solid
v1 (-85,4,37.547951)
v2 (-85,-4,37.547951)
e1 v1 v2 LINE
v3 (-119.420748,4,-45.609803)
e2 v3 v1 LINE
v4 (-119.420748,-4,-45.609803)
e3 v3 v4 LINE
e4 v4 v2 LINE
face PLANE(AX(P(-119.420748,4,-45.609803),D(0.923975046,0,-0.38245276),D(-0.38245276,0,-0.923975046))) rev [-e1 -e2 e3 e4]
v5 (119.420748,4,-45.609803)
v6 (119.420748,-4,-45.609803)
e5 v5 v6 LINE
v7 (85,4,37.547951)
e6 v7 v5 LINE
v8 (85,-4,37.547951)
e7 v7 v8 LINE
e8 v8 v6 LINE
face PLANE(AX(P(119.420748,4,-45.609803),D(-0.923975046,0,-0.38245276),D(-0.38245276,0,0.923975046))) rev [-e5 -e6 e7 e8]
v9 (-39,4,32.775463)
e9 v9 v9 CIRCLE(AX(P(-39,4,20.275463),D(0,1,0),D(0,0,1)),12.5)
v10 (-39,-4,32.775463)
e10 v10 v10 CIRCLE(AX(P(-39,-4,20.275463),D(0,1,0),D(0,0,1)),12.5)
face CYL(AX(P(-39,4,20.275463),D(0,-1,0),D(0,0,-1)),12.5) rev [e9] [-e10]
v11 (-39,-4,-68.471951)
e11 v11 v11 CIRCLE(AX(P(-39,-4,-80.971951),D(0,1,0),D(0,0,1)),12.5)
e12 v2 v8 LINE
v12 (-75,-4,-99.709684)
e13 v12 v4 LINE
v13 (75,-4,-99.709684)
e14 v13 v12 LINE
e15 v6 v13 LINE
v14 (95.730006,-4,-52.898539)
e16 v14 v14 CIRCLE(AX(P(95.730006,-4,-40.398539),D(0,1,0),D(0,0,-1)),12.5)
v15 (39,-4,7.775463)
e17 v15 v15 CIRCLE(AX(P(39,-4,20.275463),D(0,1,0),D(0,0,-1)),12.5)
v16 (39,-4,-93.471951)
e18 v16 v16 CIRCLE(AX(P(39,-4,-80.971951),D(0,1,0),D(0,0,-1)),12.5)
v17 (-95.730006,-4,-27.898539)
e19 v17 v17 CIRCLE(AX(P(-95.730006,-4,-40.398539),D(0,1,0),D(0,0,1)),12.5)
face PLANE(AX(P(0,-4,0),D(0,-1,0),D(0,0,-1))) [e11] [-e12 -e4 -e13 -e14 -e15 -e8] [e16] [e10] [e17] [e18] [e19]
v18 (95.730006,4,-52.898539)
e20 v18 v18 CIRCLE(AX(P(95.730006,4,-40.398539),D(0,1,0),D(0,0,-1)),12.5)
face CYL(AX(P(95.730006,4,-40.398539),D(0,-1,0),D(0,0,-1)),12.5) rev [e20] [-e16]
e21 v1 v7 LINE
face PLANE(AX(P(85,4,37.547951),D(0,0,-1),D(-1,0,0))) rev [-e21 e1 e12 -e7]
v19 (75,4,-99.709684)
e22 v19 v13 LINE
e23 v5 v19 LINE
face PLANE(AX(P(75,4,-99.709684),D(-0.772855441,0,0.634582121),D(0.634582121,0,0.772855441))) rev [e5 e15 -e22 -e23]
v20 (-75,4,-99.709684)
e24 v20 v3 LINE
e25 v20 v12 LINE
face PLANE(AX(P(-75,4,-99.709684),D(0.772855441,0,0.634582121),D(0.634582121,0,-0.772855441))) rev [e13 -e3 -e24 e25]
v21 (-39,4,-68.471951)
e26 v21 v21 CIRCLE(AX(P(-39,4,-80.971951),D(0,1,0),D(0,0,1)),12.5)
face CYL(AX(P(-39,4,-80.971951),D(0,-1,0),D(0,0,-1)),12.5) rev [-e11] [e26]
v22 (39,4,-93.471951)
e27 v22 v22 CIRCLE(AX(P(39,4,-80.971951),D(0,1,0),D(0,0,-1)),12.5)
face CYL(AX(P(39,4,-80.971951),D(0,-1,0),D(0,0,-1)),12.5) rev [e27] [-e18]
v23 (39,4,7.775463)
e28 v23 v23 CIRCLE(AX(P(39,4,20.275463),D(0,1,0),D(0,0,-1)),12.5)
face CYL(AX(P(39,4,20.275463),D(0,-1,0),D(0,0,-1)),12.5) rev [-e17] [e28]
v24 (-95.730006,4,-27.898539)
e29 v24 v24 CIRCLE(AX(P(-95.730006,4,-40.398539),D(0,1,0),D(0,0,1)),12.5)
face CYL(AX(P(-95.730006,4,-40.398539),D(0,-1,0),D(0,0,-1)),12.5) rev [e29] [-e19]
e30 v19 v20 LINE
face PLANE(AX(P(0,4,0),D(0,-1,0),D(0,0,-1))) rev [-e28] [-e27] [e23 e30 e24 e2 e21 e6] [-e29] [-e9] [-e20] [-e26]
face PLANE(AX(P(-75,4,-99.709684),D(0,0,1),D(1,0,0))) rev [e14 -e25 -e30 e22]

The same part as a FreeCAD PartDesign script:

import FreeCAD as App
import Part
import Sketcher

doc = App.newDocument("Part")
params = doc.addObject("Spreadsheet::Sheet", "Params")
for row, (alias, value) in enumerate([
    ("sketch1_diameter", "25 mm"),
    ("sketch1_width", "150 mm"),
    ("sketch1_width2", "170 mm"),
    ("sketch1_length", "70 mm"),
    ("sketch1_length2", "90 mm"),
    ("pad1_length", "8 mm"),
], start=1):
    params.set(f"A{row}", alias)
    params.set(f"B{row}", "=" + value)
    params.setAlias(f"B{row}", alias)

body = doc.addObject("PartDesign::Body", "Body")

sketch1 = body.newObject("Sketcher::SketchObject", "Sketch")
sketch1.AttachmentSupport = (doc.getObject("XZ_Plane"), [""])
sketch1.MapMode = "FlatFace"
sketch1.addGeometry(Part.LineSegment(App.Vector(75, -99.709684, 0), App.Vector(-75, -99.709684, 0)), False)
sketch1.addGeometry(Part.LineSegment(App.Vector(-75, -99.709684, 0), App.Vector(-119.420748, -45.609803, 0)), False)
sketch1.addGeometry(Part.LineSegment(App.Vector(-119.420748, -45.609803, 0), App.Vector(-85, 37.547951, 0)), False)
sketch1.addGeometry(Part.LineSegment(App.Vector(-85, 37.547951, 0), App.Vector(85, 37.547951, 0)), False)
sketch1.addGeometry(Part.LineSegment(App.Vector(85, 37.547951, 0), App.Vector(119.420748, -45.609803, 0)), False)
sketch1.addGeometry(Part.LineSegment(App.Vector(119.420748, -45.609803, 0), App.Vector(75, -99.709684, 0)), False)
sketch1.addGeometry(Part.Circle(App.Vector(39, 20.275463, 0), App.Vector(0, 0, 1), 12.5), False)
sketch1.addGeometry(Part.Circle(App.Vector(-39, 20.275463, 0), App.Vector(0, 0, 1), 12.5), False)
sketch1.addGeometry(Part.Circle(App.Vector(95.730006, -40.398539, 0), App.Vector(0, 0, 1), 12.5), False)
sketch1.addGeometry(Part.Circle(App.Vector(39, -80.971951, 0), App.Vector(0, 0, 1), 12.5), False)
sketch1.addGeometry(Part.Circle(App.Vector(-95.730006, -40.398539, 0), App.Vector(0, 0, 1), 12.5), False)
sketch1.addGeometry(Part.Circle(App.Vector(-39, -80.971951, 0), App.Vector(0, 0, 1), 12.5), False)
sketch1.addConstraint(Sketcher.Constraint("Coincident", 0, 2, 1, 1))
sketch1.addConstraint(Sketcher.Constraint("Coincident", 1, 2, 2, 1))
sketch1.addConstraint(Sketcher.Constraint("Coincident", 2, 2, 3, 1))
sketch1.addConstraint(Sketcher.Constraint("Coincident", 3, 2, 4, 1))
sketch1.addConstraint(Sketcher.Constraint("Coincident", 4, 2, 5, 1))
sketch1.addConstraint(Sketcher.Constraint("Coincident", 5, 2, 0, 1))
sketch1.addConstraint(Sketcher.Constraint("Horizontal", 0))
sketch1.addConstraint(Sketcher.Constraint("Horizontal", 3))
sketch1.addConstraint(Sketcher.Constraint("Equal", 6, 7))
sketch1.addConstraint(Sketcher.Constraint("Equal", 7, 8))
sketch1.addConstraint(Sketcher.Constraint("Equal", 8, 9))
sketch1.addConstraint(Sketcher.Constraint("Equal", 9, 10))
sketch1.addConstraint(Sketcher.Constraint("Equal", 10, 11))
sketch1.addConstraint(Sketcher.Constraint("Symmetric", 6, 3, 7, 3, -2))
sketch1.addConstraint(Sketcher.Constraint("Symmetric", 8, 3, 10, 3, -2))
sketch1.addConstraint(Sketcher.Constraint("Symmetric", 9, 3, 11, 3, -2))
sketch1.addConstraint(Sketcher.Constraint("Symmetric", 1, 2, 4, 2, -2))
sketch1.addConstraint(Sketcher.Constraint("Vertical", 6, 3, 9, 3))
sketch1.addConstraint(Sketcher.Constraint("Equal", 2, 4))
sketch1.addConstraint(Sketcher.Constraint("Equal", 1, 5))
sketch1.addConstraint(Sketcher.Constraint("Diameter", 6, 25.0))
sketch1.addConstraint(Sketcher.Constraint("DistanceX", 0, 2, 0, 1, 150.0))
sketch1.addConstraint(Sketcher.Constraint("DistanceX", 3, 1, 3, 2, 170.0))
sketch1.addConstraint(Sketcher.Constraint("Distance", 1, 70.0))
sketch1.addConstraint(Sketcher.Constraint("Distance", 2, 90.0))
sketch1.addConstraint(Sketcher.Constraint("DistanceX", -1, 1, 6, 3, 39.0))
sketch1.addConstraint(Sketcher.Constraint("DistanceY", 8, 3, 6, 3, 60.674002))
sketch1.addConstraint(Sketcher.Constraint("DistanceY", 8, 3, -1, 1, 40.398539))
sketch1.addConstraint(Sketcher.Constraint("DistanceY", 9, 3, -1, 1, 80.971951))
sketch1.addConstraint(Sketcher.Constraint("DistanceX", 1, 2, -1, 1, 119.420748))
sketch1.addConstraint(Sketcher.Constraint("DistanceY", -1, 1, 2, 2, 37.547951))
sketch1.addConstraint(Sketcher.Constraint("DistanceX", 10, 3, 8, 3, 191.460011))
sketch1.setExpression("Constraints[20]", "Params.sketch1_diameter")
sketch1.setExpression("Constraints[21]", "Params.sketch1_width")
sketch1.setExpression("Constraints[22]", "Params.sketch1_width2")
sketch1.setExpression("Constraints[23]", "Params.sketch1_length")
sketch1.setExpression("Constraints[24]", "Params.sketch1_length2")
pad1 = body.newObject("PartDesign::Pad", "Pad")
pad1.Profile = sketch1
pad1.setExpression("Length", "Params.pad1_length")
pad1.Midplane = True

doc.recompute()
